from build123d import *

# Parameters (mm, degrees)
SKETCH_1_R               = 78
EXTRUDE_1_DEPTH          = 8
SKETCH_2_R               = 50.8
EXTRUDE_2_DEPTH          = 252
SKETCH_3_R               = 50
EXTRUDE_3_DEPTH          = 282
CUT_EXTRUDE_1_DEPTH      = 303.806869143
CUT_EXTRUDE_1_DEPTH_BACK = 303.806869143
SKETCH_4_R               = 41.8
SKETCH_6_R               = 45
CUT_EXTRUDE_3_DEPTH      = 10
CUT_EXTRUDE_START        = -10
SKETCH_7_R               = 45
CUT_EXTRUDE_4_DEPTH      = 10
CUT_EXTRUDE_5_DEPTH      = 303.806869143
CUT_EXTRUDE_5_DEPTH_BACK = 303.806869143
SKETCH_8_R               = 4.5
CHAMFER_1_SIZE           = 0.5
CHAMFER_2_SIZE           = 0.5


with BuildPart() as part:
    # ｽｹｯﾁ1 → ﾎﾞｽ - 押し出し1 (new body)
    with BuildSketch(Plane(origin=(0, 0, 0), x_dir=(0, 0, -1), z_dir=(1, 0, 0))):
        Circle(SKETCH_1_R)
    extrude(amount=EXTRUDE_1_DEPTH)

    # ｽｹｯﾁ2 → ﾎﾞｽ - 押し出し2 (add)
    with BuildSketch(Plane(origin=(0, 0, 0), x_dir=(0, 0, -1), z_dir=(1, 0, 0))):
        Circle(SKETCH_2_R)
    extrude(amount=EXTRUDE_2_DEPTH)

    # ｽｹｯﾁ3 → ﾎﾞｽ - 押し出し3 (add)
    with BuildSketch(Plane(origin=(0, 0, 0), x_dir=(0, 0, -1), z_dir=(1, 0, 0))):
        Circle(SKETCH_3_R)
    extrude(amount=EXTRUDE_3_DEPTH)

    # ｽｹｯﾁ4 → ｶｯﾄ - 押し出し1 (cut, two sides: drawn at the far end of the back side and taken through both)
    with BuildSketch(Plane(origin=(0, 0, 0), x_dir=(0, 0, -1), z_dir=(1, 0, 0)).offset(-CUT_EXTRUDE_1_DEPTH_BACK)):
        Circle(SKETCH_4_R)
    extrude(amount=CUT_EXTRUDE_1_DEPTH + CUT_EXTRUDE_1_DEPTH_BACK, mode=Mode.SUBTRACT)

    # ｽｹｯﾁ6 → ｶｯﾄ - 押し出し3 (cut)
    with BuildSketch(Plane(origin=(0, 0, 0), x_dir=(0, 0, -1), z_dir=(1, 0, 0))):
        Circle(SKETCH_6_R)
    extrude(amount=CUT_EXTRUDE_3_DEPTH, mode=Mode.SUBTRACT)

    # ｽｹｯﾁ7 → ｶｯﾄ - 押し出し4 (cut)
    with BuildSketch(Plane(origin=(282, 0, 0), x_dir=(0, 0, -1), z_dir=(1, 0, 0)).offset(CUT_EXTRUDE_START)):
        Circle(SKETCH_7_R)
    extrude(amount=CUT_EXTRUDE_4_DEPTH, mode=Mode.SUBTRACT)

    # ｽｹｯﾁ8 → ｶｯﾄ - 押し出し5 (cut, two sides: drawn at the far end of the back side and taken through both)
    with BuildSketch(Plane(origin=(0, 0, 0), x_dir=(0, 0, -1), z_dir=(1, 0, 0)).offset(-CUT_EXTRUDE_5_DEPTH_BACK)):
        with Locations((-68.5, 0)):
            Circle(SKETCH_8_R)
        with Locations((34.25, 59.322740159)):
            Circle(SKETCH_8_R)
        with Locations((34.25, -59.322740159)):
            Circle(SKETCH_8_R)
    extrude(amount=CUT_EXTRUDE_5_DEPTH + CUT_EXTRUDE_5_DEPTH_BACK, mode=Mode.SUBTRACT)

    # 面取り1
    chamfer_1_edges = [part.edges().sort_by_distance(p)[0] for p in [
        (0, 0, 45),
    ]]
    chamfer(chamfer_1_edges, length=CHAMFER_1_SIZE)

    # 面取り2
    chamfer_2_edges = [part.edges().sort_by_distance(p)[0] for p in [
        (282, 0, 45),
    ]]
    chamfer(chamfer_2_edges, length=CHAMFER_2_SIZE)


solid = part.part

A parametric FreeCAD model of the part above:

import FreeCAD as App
import Part
import Sketcher
Q = App.Units.Quantity


def edges_at(feature, points):
    """Names of the edges that pass closest to the given points."""
    edges = feature.Shape.Edges
    near = lambda p: min(range(len(edges)), key=lambda i: edges[i].distToShape(Part.Vertex(*p))[0])
    return sorted({f"Edge{near(p) + 1}" for p in points})

doc = App.newDocument("Part")
body = doc.addObject("PartDesign::Body", "Body")

sketch1 = doc.addObject("Sketcher::SketchObject", "Sketch")
body.addObject(sketch1)
sketch1.AttachmentSupport = (doc.YZ_Plane, [""])
sketch1.MapMode = "FlatFace"
sketch1.addGeometry(Part.Circle(App.Vector(0, 0, 0), App.Vector(0, 0, 1), 78), False)
sketch1.addConstraint(Sketcher.Constraint("Coincident", 0, 3, -1, 1))
sketch1.addConstraint(Sketcher.Constraint("Diameter", 0, Q("156 mm")))
pad1 = doc.addObject("PartDesign::Pad", "Pad")
body.addObject(pad1)
pad1.Profile = sketch1
pad1.Length = 8

sketch2 = doc.addObject("Sketcher::SketchObject", "Sketch001")
body.addObject(sketch2)
sketch2.AttachmentSupport = (doc.YZ_Plane, [""])
sketch2.MapMode = "FlatFace"
sketch2.addGeometry(Part.Circle(App.Vector(0, 0, 0), App.Vector(0, 0, 1), 51), False)
sketch2.addConstraint(Sketcher.Constraint("Coincident", 0, 3, -1, 1))
sketch2.addConstraint(Sketcher.Constraint("Diameter", 0, Q("101.6 mm")))
pad2 = doc.addObject("PartDesign::Pad", "Pad001")
body.addObject(pad2)
pad2.Profile = sketch2
pad2.Length = 252

sketch3 = doc.addObject("Sketcher::SketchObject", "Sketch002")
body.addObject(sketch3)
sketch3.AttachmentSupport = (doc.YZ_Plane, [""])
sketch3.MapMode = "FlatFace"
sketch3.addGeometry(Part.Circle(App.Vector(0, 0, 0), App.Vector(0, 0, 1), 50), False)
sketch3.addConstraint(Sketcher.Constraint("Coincident", 0, 3, -1, 1))
sketch3.addConstraint(Sketcher.Constraint("Diameter", 0, Q("100 mm")))
pad3 = doc.addObject("PartDesign::Pad", "Pad002")
body.addObject(pad3)
pad3.Profile = sketch3
pad3.Length = 282

sketch4 = doc.addObject("Sketcher::SketchObject", "Sketch003")
body.addObject(sketch4)
sketch4.AttachmentSupport = (doc.YZ_Plane, [""])
sketch4.MapMode = "FlatFace"
sketch4.addGeometry(Part.Circle(App.Vector(0, 0, 0), App.Vector(0, 0, 1), 42), False)
sketch4.addConstraint(Sketcher.Constraint("Coincident", 0, 3, -1, 1))
sketch4.addConstraint(Sketcher.Constraint("Diameter", 0, Q("83.6 mm")))
pocket1 = doc.addObject("PartDesign::Pocket", "Pocket")
body.addObject(pocket1)
pocket1.Profile = sketch4
pocket1.Type = "ThroughAll"
pocket1.Midplane = True

sketch5 = doc.addObject("Sketcher::SketchObject", "Sketch004")
body.addObject(sketch5)
sketch5.AttachmentSupport = (doc.YZ_Plane, [""])
sketch5.MapMode = "FlatFace"
sketch5.addGeometry(Part.Circle(App.Vector(0, 0, 0), App.Vector(0, 0, 1), 45), False)
sketch5.addConstraint(Sketcher.Constraint("Coincident", 0, 3, -1, 1))
sketch5.addConstraint(Sketcher.Constraint("Diameter", 0, Q("90 mm")))
pocket2 = doc.addObject("PartDesign::Pocket", "Pocket001")
body.addObject(pocket2)
pocket2.Profile = sketch5
pocket2.Length = 10
pocket2.Reversed = True

sketch6 = doc.addObject("Sketcher::SketchObject", "Sketch005")
body.addObject(sketch6)
sketch6.AttachmentSupport = (doc.YZ_Plane, [""])
sketch6.MapMode = "FlatFace"
sketch6.AttachmentOffset = App.Placement(App.Vector(0, 0, 272), App.Rotation())
sketch6.addGeometry(Part.Circle(App.Vector(0, 0, 0), App.Vector(0, 0, 1), 45), False)
sketch6.addConstraint(Sketcher.Constraint("Coincident", 0, 3, -1, 1))
sketch6.addConstraint(Sketcher.Constraint("Diameter", 0, Q("90 mm")))
pocket3 = doc.addObject("PartDesign::Pocket", "Pocket002")
body.addObject(pocket3)
pocket3.Profile = sketch6
pocket3.Length = 10
pocket3.Reversed = True

sketch7 = doc.addObject("Sketcher::SketchObject", "Sketch006")
body.addObject(sketch7)
sketch7.AttachmentSupport = (doc.YZ_Plane, [""])
sketch7.MapMode = "FlatFace"
sketch7.addGeometry(Part.Circle(App.Vector(0, 68.5, 0), App.Vector(0, 0, 1), 4.5), False)
sketch7.addGeometry(Part.Circle(App.Vector(59.3, -34.2, 0), App.Vector(0, 0, 1), 4.5), False)
sketch7.addGeometry(Part.Circle(App.Vector(-59.3, -34.2, 0), App.Vector(0, 0, 1), 4.5), False)
sketch7.addConstraint(Sketcher.Constraint("Equal", 0, 1))
sketch7.addConstraint(Sketcher.Constraint("Equal", 1, 2))
sketch7.addConstraint(Sketcher.Constraint("Symmetric", 1, 3, 2, 3, -2))
sketch7.addConstraint(Sketcher.Constraint("PointOnObject", 0, 3, -2))
sketch7.addConstraint(Sketcher.Constraint("Diameter", 0, Q("9 mm")))
sketch7.addConstraint(Sketcher.Constraint("DistanceY", -1, 1, 0, 3, Q("68.5 mm")))
sketch7.addConstraint(Sketcher.Constraint("DistanceY", 1, 3, -1, 1, Q("34.25 mm")))
sketch7.addConstraint(Sketcher.Constraint("DistanceX", -1, 1, 1, 3, Q("59.32274 mm")))
pocket4 = doc.addObject("PartDesign::Pocket", "Pocket003")
body.addObject(pocket4)
pocket4.Profile = sketch7
pocket4.Type = "ThroughAll"
pocket4.Midplane = True
doc.recompute()

chamfer = doc.addObject("PartDesign::Chamfer", "Chamfer")
body.addObject(chamfer)
chamfer.Base = (pocket4, edges_at(pocket4, [(0, 0, 45)]))
chamfer.Size = 0.5
doc.recompute()

chamfer2 = doc.addObject("PartDesign::Chamfer", "Chamfer001")
body.addObject(chamfer2)
chamfer2.Base = (chamfer, edges_at(chamfer, [(282, 0, 45)]))
chamfer2.Size = 0.5

doc.recompute()
